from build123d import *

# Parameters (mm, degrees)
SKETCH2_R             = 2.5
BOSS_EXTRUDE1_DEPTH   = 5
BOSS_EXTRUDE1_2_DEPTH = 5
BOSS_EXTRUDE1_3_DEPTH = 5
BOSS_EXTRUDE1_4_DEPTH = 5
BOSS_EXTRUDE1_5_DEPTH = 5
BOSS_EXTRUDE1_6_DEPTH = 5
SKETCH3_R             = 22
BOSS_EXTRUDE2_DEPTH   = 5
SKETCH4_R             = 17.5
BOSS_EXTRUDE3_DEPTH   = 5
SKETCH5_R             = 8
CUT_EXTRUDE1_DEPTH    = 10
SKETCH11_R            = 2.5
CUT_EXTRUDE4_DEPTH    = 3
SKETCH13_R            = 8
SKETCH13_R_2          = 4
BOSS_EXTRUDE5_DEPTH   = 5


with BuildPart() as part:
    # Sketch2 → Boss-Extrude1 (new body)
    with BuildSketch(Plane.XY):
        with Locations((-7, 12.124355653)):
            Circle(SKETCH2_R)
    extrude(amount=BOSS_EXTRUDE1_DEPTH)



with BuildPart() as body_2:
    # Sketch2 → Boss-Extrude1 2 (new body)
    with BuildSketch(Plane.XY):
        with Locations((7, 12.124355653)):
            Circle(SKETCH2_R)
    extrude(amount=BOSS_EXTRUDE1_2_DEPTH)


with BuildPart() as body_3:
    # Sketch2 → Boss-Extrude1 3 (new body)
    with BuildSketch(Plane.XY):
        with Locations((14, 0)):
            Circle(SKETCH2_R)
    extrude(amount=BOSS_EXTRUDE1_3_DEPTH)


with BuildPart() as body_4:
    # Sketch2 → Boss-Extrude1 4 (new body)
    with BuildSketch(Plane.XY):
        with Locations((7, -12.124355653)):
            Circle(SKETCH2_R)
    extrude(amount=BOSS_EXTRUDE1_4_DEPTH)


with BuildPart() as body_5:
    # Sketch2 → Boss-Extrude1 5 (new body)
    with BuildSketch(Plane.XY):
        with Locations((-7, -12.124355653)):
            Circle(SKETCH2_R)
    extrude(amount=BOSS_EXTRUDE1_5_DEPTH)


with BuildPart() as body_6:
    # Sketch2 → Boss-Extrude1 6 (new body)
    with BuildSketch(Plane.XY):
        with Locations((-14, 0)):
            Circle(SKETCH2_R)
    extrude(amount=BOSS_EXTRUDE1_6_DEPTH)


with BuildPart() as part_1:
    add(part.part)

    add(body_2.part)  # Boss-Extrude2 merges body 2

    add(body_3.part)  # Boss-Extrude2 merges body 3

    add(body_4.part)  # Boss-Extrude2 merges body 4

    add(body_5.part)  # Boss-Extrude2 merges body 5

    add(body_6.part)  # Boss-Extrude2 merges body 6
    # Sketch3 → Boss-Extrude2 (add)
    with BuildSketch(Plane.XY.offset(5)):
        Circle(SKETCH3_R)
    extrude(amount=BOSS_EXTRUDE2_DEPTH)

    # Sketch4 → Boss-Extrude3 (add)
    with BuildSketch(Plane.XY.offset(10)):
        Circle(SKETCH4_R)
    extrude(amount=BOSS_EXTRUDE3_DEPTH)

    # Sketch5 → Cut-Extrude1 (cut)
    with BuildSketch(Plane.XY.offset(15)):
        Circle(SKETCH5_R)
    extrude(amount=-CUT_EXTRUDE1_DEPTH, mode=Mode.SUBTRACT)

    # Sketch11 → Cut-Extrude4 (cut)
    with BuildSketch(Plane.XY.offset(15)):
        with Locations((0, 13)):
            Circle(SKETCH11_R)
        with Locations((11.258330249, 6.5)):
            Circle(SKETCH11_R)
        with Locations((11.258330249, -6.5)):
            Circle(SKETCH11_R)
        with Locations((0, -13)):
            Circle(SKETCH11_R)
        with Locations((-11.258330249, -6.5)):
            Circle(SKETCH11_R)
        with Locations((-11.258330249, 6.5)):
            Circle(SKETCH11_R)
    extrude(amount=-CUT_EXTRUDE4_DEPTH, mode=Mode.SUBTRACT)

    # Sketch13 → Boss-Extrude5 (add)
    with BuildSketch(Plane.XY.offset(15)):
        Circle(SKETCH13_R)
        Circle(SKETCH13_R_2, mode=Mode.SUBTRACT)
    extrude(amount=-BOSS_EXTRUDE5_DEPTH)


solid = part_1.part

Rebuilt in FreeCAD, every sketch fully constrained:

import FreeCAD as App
import Part
import Sketcher
from FreeCAD import Vector

doc = App.newDocument("Part")
body = doc.addObject("PartDesign::Body", "Body")

sketch1 = body.newObject("Sketcher::SketchObject", "Sketch")
sketch1.AttachmentSupport = (doc.getObject("XY_Plane"), [""])
sketch1.MapMode = "FlatFace"
sketch1.addGeometry(Part.Circle(Vector(-7, 12.124356, 0), Vector(0, 0, 1), 2.5), False)
sketch1.addConstraint(Sketcher.Constraint("Diameter", 0, 5.0))
sketch1.addConstraint(Sketcher.Constraint("DistanceX", 0, 3, -1, 1, 7.0))
sketch1.addConstraint(Sketcher.Constraint("DistanceY", -1, 1, 0, 3, 12.124356))
pad1 = body.newObject("PartDesign::Pad", "Pad")
pad1.Profile = sketch1
pad1.Length = 5
body2 = doc.addObject("PartDesign::Body", "Body001")

sketch2 = body2.newObject("Sketcher::SketchObject", "Sketch001")
sketch2.AttachmentSupport = (doc.getObject("XY_Plane001"), [""])
sketch2.MapMode = "FlatFace"
sketch2.addGeometry(Part.Circle(Vector(7, 12.124356, 0), Vector(0, 0, 1), 2.5), False)
sketch2.addConstraint(Sketcher.Constraint("Diameter", 0, 5.0))
sketch2.addConstraint(Sketcher.Constraint("DistanceX", -1, 1, 0, 3, 7.0))
sketch2.addConstraint(Sketcher.Constraint("DistanceY", -1, 1, 0, 3, 12.124356))
pad2 = body2.newObject("PartDesign::Pad", "Pad001")
pad2.Profile = sketch2
pad2.Length = 5
body3 = doc.addObject("PartDesign::Body", "Body002")

sketch3 = body3.newObject("Sketcher::SketchObject", "Sketch002")
sketch3.AttachmentSupport = (doc.getObject("XY_Plane002"), [""])
sketch3.MapMode = "FlatFace"
sketch3.addGeometry(Part.Circle(Vector(14, 0, 0), Vector(0, 0, 1), 2.5), False)
sketch3.addConstraint(Sketcher.Constraint("PointOnObject", 0, 3, -1))
sketch3.addConstraint(Sketcher.Constraint("Diameter", 0, 5.0))
sketch3.addConstraint(Sketcher.Constraint("DistanceX", -1, 1, 0, 3, 14.0))
pad3 = body3.newObject("PartDesign::Pad", "Pad002")
pad3.Profile = sketch3
pad3.Length = 5
body4 = doc.addObject("PartDesign::Body", "Body003")

sketch4 = body4.newObject("Sketcher::SketchObject", "Sketch003")
sketch4.AttachmentSupport = (doc.getObject("XY_Plane003"), [""])
sketch4.MapMode = "FlatFace"
sketch4.addGeometry(Part.Circle(Vector(7, -12.124356, 0), Vector(0, 0, 1), 2.5), False)
sketch4.addConstraint(Sketcher.Constraint("Diameter", 0, 5.0))
sketch4.addConstraint(Sketcher.Constraint("DistanceX", -1, 1, 0, 3, 7.0))
sketch4.addConstraint(Sketcher.Constraint("DistanceY", 0, 3, -1, 1, 12.124356))
pad4 = body4.newObject("PartDesign::Pad", "Pad003")
pad4.Profile = sketch4
pad4.Length = 5
body5 = doc.addObject("PartDesign::Body", "Body004")

sketch5 = body5.newObject("Sketcher::SketchObject", "Sketch004")
sketch5.AttachmentSupport = (doc.getObject("XY_Plane004"), [""])
sketch5.MapMode = "FlatFace"
sketch5.addGeometry(Part.Circle(Vector(-7, -12.124356, 0), Vector(0, 0, 1), 2.5), False)
sketch5.addConstraint(Sketcher.Constraint("Diameter", 0, 5.0))
sketch5.addConstraint(Sketcher.Constraint("DistanceX", 0, 3, -1, 1, 7.0))
sketch5.addConstraint(Sketcher.Constraint("DistanceY", 0, 3, -1, 1, 12.124356))
pad5 = body5.newObject("PartDesign::Pad", "Pad004")
pad5.Profile = sketch5
pad5.Length = 5
body6 = doc.addObject("PartDesign::Body", "Body005")

sketch6 = body6.newObject("Sketcher::SketchObject", "Sketch005")
sketch6.AttachmentSupport = (doc.getObject("XY_Plane005"), [""])
sketch6.MapMode = "FlatFace"
sketch6.addGeometry(Part.Circle(Vector(-14, 0, 0), Vector(0, 0, 1), 2.5), False)
sketch6.addConstraint(Sketcher.Constraint("PointOnObject", 0, 3, -1))
sketch6.addConstraint(Sketcher.Constraint("Diameter", 0, 5.0))
sketch6.addConstraint(Sketcher.Constraint("DistanceX", 0, 3, -1, 1, 14.0))
pad6 = body6.newObject("PartDesign::Pad", "Pad005")
pad6.Profile = sketch6
pad6.Length = 5
body.AllowCompound = True
doc.recompute()

boolean = body.newObject("PartDesign::Boolean", "Boolean")
boolean.Type = "Fuse"
boolean.addObjects([body2])
doc.recompute()

boolean2 = body.newObject("PartDesign::Boolean", "Boolean001")
boolean2.Type = "Fuse"
boolean2.addObjects([body3])
doc.recompute()

boolean3 = body.newObject("PartDesign::Boolean", "Boolean002")
boolean3.Type = "Fuse"
boolean3.addObjects([body4])
doc.recompute()

boolean4 = body.newObject("PartDesign::Boolean", "Boolean003")
boolean4.Type = "Fuse"
boolean4.addObjects([body5])
doc.recompute()

boolean5 = body.newObject("PartDesign::Boolean", "Boolean004")
boolean5.Type = "Fuse"
boolean5.addObjects([body6])

sketch7 = body.newObject("Sketcher::SketchObject", "Sketch006")
sketch7.AttachmentSupport = (doc.getObject("XY_Plane"), [""])
sketch7.MapMode = "FlatFace"
sketch7.AttachmentOffset = App.Placement(Vector(0, 0, 5), App.Rotation())
sketch7.addGeometry(Part.Circle(Vector(0, 0, 0), Vector(0, 0, 1), 22), False)
sketch7.addConstraint(Sketcher.Constraint("Coincident", 0, 3, -1, 1))
sketch7.addConstraint(Sketcher.Constraint("Diameter", 0, 44.0))
pad7 = body.newObject("PartDesign::Pad", "Pad006")
pad7.Profile = sketch7
pad7.Length = 5

sketch8 = body.newObject("Sketcher::SketchObject", "Sketch007")
sketch8.AttachmentSupport = (doc.getObject("XY_Plane"), [""])
sketch8.MapMode = "FlatFace"
sketch8.AttachmentOffset = App.Placement(Vector(0, 0, 10), App.Rotation())
sketch8.addGeometry(Part.Circle(Vector(0, 0, 0), Vector(0, 0, 1), 17.5), False)
sketch8.addConstraint(Sketcher.Constraint("Coincident", 0, 3, -1, 1))
sketch8.addConstraint(Sketcher.Constraint("Diameter", 0, 35.0))
pad8 = body.newObject("PartDesign::Pad", "Pad007")
pad8.Profile = sketch8
pad8.Length = 5

sketch9 = body.newObject("Sketcher::SketchObject", "Sketch008")
sketch9.AttachmentSupport = (doc.getObject("XY_Plane"), [""])
sketch9.MapMode = "FlatFace"
sketch9.AttachmentOffset = App.Placement(Vector(0, 0, 15), App.Rotation())
sketch9.addGeometry(Part.Circle(Vector(0, 0, 0), Vector(0, 0, 1), 8), False)
sketch9.addConstraint(Sketcher.Constraint("Coincident", 0, 3, -1, 1))
sketch9.addConstraint(Sketcher.Constraint("Diameter", 0, 16.0))
pocket1 = body.newObject("PartDesign::Pocket", "Pocket")
pocket1.Profile = sketch9
pocket1.Length = 10

sketch10 = body.newObject("Sketcher::SketchObject", "Sketch009")
sketch10.AttachmentSupport = (doc.getObject("XY_Plane"), [""])
sketch10.MapMode = "FlatFace"
sketch10.AttachmentOffset = App.Placement(Vector(0, 0, 15), App.Rotation())
sketch10.addGeometry(Part.Circle(Vector(0, 13, 0), Vector(0, 0, 1), 2.5), False)
sketch10.addGeometry(Part.Circle(Vector(11.25833, 6.5, 0), Vector(0, 0, 1), 2.5), False)
sketch10.addGeometry(Part.Circle(Vector(11.25833, -6.5, 0), Vector(0, 0, 1), 2.5), False)
sketch10.addGeometry(Part.Circle(Vector(0, -13, 0), Vector(0, 0, 1), 2.5), False)
sketch10.addGeometry(Part.Circle(Vector(-11.25833, -6.5, 0), Vector(0, 0, 1), 2.5), False)
sketch10.addGeometry(Part.Circle(Vector(-11.25833, 6.5, 0), Vector(0, 0, 1), 2.5), False)
sketch10.addConstraint(Sketcher.Constraint("Equal", 0, 1))
sketch10.addConstraint(Sketcher.Constraint("Equal", 1, 2))
sketch10.addConstraint(Sketcher.Constraint("Equal", 2, 3))
sketch10.addConstraint(Sketcher.Constraint("Equal", 3, 4))
sketch10.addConstraint(Sketcher.Constraint("Equal", 4, 5))
sketch10.addConstraint(Sketcher.Constraint("Symmetric", 0, 3, 3, 3, -1, 1))
sketch10.addConstraint(Sketcher.Constraint("Symmetric", 1, 3, 4, 3, -1, 1))
sketch10.addConstraint(Sketcher.Constraint("Symmetric", 2, 3, 5, 3, -1, 1))
sketch10.addConstraint(Sketcher.Constraint("Symmetric", 2, 3, 4, 3, -2))
sketch10.addConstraint(Sketcher.Constraint("PointOnObject", 0, 3, -2))
sketch10.addConstraint(Sketcher.Constraint("Diameter", 0, 5.0))
sketch10.addConstraint(Sketcher.Constraint("DistanceY", -1, 1, 0, 3, 13.0))
sketch10.addConstraint(Sketcher.Constraint("DistanceY", 2, 3, 1, 3, 13.0))
sketch10.addConstraint(Sketcher.Constraint("DistanceX", -1, 1, 1, 3, 11.25833))
pocket2 = body.newObject("PartDesign::Pocket", "Pocket001")
pocket2.Profile = sketch10
pocket2.Length = 3

sketch11 = body.newObject("Sketcher::SketchObject", "Sketch010")
sketch11.AttachmentSupport = (doc.getObject("XY_Plane"), [""])
sketch11.MapMode = "FlatFace"
sketch11.AttachmentOffset = App.Placement(Vector(0, 0, 15), App.Rotation())
sketch11.addGeometry(Part.Circle(Vector(0, 0, 0), Vector(0, 0, 1), 8), False)
sketch11.addGeometry(Part.Circle(Vector(0, 0, 0), Vector(0, 0, 1), 4), False)
sketch11.addConstraint(Sketcher.Constraint("Coincident", 0, 3, -1, 1))
sketch11.addConstraint(Sketcher.Constraint("Coincident", 1, 3, -1, 1))
sketch11.addConstraint(Sketcher.Constraint("Diameter", 0, 16.0))
sketch11.addConstraint(Sketcher.Constraint("Diameter", 1, 8.0))
pad9 = body.newObject("PartDesign::Pad", "Pad008")
pad9.Profile = sketch11
pad9.Length = 5
pad9.Reversed = True

doc.recompute()
